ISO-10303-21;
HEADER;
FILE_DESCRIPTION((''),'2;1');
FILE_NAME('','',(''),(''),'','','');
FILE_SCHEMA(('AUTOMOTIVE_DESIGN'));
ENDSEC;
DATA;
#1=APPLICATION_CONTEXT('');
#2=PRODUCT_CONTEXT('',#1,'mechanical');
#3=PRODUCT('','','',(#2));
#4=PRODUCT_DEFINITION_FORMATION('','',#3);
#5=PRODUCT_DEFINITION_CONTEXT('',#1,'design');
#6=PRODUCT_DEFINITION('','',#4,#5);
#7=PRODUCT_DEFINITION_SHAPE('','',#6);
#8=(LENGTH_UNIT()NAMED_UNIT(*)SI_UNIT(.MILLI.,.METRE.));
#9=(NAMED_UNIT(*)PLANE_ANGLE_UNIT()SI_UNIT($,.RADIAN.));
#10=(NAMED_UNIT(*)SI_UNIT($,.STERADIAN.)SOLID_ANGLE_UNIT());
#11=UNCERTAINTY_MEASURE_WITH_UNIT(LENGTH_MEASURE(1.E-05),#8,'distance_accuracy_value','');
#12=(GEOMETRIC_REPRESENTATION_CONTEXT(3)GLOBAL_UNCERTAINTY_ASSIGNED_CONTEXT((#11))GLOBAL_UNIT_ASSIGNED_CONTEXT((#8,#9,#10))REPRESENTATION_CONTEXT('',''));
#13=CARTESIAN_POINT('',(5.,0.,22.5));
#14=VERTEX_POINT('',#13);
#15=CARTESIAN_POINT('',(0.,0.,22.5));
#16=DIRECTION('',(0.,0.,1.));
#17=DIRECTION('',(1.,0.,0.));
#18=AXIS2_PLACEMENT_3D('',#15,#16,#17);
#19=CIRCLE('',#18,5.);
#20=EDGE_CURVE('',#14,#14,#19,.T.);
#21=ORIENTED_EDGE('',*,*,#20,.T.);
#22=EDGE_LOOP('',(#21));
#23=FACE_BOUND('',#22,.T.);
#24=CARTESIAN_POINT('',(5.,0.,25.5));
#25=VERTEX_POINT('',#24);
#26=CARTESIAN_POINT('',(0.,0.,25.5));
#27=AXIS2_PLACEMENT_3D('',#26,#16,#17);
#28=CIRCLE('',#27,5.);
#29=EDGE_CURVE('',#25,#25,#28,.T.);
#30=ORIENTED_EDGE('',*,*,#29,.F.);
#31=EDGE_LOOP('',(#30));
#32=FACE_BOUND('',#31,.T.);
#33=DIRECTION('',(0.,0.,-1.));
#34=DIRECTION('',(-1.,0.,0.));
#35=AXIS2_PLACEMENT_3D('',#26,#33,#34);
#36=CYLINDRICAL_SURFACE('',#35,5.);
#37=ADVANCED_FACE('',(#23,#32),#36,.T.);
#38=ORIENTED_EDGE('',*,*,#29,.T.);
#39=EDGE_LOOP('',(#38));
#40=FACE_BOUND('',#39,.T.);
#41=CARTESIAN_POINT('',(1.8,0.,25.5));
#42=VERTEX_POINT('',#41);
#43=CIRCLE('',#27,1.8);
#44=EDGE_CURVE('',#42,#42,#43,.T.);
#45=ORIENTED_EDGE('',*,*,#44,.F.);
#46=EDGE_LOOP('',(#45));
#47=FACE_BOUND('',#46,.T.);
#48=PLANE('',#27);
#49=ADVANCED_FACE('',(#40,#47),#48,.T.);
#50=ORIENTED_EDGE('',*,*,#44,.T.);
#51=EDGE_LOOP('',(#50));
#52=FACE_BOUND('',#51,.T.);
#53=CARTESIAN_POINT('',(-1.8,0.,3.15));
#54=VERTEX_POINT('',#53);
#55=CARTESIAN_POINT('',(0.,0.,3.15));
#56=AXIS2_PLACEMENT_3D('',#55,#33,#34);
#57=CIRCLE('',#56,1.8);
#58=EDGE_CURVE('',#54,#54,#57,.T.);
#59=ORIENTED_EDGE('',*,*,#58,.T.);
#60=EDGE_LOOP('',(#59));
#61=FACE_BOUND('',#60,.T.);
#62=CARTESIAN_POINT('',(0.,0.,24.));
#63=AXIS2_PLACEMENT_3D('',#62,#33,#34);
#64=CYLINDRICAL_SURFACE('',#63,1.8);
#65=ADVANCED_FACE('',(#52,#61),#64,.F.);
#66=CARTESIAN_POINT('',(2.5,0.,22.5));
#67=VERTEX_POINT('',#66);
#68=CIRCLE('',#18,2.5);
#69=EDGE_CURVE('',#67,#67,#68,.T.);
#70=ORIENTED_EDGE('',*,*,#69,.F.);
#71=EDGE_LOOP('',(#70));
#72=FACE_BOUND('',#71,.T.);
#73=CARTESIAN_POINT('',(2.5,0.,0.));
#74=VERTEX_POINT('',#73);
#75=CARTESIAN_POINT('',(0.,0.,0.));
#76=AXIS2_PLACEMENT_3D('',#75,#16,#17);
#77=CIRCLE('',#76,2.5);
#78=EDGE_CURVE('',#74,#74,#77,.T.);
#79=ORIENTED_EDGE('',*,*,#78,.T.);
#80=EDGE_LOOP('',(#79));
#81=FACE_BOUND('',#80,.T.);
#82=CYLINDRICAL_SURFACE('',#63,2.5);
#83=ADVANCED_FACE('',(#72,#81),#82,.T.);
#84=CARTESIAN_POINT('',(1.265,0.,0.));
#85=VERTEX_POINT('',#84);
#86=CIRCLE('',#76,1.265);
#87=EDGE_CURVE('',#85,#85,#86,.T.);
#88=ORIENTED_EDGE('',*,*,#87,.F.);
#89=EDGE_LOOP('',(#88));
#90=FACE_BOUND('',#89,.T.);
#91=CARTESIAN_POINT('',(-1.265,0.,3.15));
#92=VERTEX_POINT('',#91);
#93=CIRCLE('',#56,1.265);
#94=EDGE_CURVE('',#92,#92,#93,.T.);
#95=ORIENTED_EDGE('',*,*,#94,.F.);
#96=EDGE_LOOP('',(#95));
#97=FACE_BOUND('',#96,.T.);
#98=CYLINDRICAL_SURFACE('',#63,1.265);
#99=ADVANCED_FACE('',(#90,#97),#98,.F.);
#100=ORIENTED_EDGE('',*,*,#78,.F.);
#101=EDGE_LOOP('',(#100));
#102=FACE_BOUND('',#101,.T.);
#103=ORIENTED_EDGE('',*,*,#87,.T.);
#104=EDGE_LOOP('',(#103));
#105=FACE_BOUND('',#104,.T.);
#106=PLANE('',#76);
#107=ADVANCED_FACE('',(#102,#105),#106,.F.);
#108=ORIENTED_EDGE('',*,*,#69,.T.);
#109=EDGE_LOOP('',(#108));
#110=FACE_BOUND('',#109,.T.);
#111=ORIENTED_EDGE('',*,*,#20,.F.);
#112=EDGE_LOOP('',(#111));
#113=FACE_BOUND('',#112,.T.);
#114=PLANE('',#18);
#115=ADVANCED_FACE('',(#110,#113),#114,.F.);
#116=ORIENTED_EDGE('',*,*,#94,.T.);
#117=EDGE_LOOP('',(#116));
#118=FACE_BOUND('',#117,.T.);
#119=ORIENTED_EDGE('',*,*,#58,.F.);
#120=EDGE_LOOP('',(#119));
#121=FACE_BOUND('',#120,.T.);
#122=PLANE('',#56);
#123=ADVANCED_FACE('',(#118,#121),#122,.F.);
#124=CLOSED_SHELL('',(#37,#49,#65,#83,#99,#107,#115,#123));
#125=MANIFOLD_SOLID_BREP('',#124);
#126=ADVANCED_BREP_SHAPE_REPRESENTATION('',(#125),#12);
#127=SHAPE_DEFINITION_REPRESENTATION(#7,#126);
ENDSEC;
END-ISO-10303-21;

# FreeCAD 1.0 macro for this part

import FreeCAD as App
import Part
import Sketcher

V = App.Vector
Q = App.Units.Quantity

doc = App.newDocument("Part")
params = doc.addObject("Spreadsheet::Sheet", "Params")
for row, (alias, value) in enumerate([
    ("sketch1_diameter", "5 mm"),
    ("sketch1_diameter2", "3.6 mm"),
    ("pad1_length", "24 mm"),
    ("sketch2_diameter", "3.6 mm"),
    ("pad2_length", "3.15 mm"),
    ("sketch3_diameter", "2.53 mm"),
    ("sketch4_diameter", "10 mm"),
    ("sketch4_diameter2", "3.6 mm"),
    ("pad3_length", "3 mm"),
], start=1):
    params.set(f"A{row}", alias)
    params.set(f"B{row}", "=" + value)
    params.setAlias(f"B{row}", alias)

body = doc.addObject("PartDesign::Body", "Body")

# Sketch on XY plane
sketch1 = doc.addObject("Sketcher::SketchObject", "Sketch")
body.addObject(sketch1)
sketch1.AttachmentSupport = (doc.XY_Plane, [""])
sketch1.MapMode = "FlatFace"
sketch1.addGeometry(Part.Circle(V(0, 0, 0), V(0, 0, 1), 2.5), False)
sketch1.addGeometry(Part.Circle(V(0, 0, 0), V(0, 0, 1), 1.8), False)
sketch1.addConstraint(Sketcher.Constraint("Coincident", 0, 3, -1, 1))
sketch1.addConstraint(Sketcher.Constraint("Coincident", 1, 3, -1, 1))
sketch1.addConstraint(Sketcher.Constraint("Diameter", 0, Q("5 mm")))
sketch1.addConstraint(Sketcher.Constraint("Diameter", 1, Q("3.6 mm")))
sketch1.setExpression("Constraints[2]", "Params.sketch1_diameter")
sketch1.setExpression("Constraints[3]", "Params.sketch1_diameter2")
pad1 = doc.addObject("PartDesign::Pad", "Pad")
body.addObject(pad1)
pad1.Profile = sketch1
pad1.setExpression("Length", "Params.pad1_length")

# Sketch on XY plane
sketch2 = doc.addObject("Sketcher::SketchObject", "Sketch001")
body.addObject(sketch2)
sketch2.AttachmentSupport = (doc.XY_Plane, [""])
sketch2.MapMode = "FlatFace"
sketch2.addGeometry(Part.Circle(V(0, 0, 0), V(0, 0, 1), 1.8), False)
sketch2.addConstraint(Sketcher.Constraint("Coincident", 0, 3, -1, 1))
sketch2.addConstraint(Sketcher.Constraint("Diameter", 0, Q("3.6 mm")))
sketch2.setExpression("Constraints[1]", "Params.sketch2_diameter")
pad2 = doc.addObject("PartDesign::Pad", "Pad001")
body.addObject(pad2)
pad2.Profile = sketch2
pad2.setExpression("Length", "Params.pad2_length")

# Sketch on XY plane
sketch3 = doc.addObject("Sketcher::SketchObject", "Sketch002")
body.addObject(sketch3)
sketch3.AttachmentSupport = (doc.XY_Plane, [""])
sketch3.MapMode = "FlatFace"
sketch3.addGeometry(Part.Circle(V(0, 0, 0), V(0, 0, 1), 1.265), False)
sketch3.addConstraint(Sketcher.Constraint("Coincident", 0, 3, -1, 1))
sketch3.addConstraint(Sketcher.Constraint("Diameter", 0, Q("2.53 mm")))
sketch3.setExpression("Constraints[1]", "Params.sketch3_diameter")
pocket1 = doc.addObject("PartDesign::Pocket", "Pocket")
body.addObject(pocket1)
pocket1.Profile = sketch3
pocket1.Type = "ThroughAll"
pocket1.Midplane = True

# Sketch on XY plane
sketch4 = doc.addObject("Sketcher::SketchObject", "Sketch003")
body.addObject(sketch4)
sketch4.AttachmentSupport = (doc.XY_Plane, [""])
sketch4.MapMode = "FlatFace"
sketch4.AttachmentOffset = App.Placement(V(0, 0, 24), App.Rotation())
sketch4.addGeometry(Part.Circle(V(0, 0, 0), V(0, 0, 1), 5), False)
sketch4.addGeometry(Part.Circle(V(0, 0, 0), V(0, 0, 1), 1.8), False)
sketch4.addConstraint(Sketcher.Constraint("Coincident", 0, 3, -1, 1))
sketch4.addConstraint(Sketcher.Constraint("Coincident", 1, 3, -1, 1))
sketch4.addConstraint(Sketcher.Constraint("Diameter", 0, Q("10 mm")))
sketch4.addConstraint(Sketcher.Constraint("Diameter", 1, Q("3.6 mm")))
sketch4.setExpression("Constraints[2]", "Params.sketch4_diameter")
sketch4.setExpression("Constraints[3]", "Params.sketch4_diameter2")
pad3 = doc.addObject("PartDesign::Pad", "Pad002")
body.addObject(pad3)
pad3.Profile = sketch4
pad3.setExpression("Length", "Params.pad3_length")
pad3.Midplane = True

doc.recompute()
